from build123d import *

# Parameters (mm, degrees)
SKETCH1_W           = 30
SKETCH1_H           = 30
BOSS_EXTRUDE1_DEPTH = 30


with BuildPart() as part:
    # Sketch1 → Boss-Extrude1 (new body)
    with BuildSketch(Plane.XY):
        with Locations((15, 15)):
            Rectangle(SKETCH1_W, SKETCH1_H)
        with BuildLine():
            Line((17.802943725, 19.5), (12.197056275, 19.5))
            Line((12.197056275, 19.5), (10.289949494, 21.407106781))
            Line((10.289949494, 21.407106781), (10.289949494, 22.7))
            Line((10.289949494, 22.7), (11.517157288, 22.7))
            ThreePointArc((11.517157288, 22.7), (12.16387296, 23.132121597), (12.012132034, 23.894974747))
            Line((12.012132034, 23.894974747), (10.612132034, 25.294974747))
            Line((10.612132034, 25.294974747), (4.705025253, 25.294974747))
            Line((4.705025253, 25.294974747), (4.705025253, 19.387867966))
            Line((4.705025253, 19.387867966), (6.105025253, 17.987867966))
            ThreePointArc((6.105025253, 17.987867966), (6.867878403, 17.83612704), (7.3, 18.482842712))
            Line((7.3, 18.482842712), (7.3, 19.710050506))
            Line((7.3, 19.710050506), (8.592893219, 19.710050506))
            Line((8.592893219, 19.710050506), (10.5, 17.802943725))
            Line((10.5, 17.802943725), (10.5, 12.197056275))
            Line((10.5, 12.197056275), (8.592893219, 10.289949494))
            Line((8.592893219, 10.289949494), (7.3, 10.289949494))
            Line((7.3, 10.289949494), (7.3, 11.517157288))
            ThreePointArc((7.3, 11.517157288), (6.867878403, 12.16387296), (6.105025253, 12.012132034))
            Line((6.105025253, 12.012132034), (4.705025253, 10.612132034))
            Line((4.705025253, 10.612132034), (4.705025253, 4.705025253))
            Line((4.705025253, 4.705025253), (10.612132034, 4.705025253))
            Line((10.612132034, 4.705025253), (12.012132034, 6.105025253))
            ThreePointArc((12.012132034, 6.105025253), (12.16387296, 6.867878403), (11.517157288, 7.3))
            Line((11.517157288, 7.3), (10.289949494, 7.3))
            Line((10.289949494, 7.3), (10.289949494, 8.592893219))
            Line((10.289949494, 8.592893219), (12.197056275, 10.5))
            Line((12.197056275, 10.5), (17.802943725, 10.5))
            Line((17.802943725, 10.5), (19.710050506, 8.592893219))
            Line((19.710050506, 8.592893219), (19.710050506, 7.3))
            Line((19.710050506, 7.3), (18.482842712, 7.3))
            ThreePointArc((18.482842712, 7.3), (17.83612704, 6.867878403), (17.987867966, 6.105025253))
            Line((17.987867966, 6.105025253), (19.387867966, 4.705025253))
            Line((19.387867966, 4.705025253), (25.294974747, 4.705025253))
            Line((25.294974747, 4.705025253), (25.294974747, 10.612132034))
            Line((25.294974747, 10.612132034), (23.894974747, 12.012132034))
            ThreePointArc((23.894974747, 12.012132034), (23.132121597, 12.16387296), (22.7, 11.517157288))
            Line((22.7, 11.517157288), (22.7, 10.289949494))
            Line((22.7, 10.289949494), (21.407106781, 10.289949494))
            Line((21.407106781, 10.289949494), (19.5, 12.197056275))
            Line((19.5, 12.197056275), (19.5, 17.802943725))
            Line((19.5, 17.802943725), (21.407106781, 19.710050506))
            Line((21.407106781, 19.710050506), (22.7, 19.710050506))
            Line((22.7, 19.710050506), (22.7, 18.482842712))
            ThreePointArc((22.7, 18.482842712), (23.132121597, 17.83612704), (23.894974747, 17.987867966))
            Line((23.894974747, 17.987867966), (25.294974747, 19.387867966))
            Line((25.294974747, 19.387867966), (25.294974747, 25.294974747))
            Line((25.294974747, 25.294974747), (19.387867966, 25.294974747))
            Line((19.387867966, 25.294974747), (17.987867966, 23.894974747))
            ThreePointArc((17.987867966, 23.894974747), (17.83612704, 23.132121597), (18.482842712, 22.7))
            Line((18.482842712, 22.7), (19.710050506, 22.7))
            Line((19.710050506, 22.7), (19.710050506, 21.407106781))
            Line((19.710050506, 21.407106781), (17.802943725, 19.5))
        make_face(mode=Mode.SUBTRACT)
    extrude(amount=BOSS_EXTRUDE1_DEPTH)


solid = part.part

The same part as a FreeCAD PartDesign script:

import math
import FreeCAD as App
import Part
import Sketcher
from FreeCAD import Vector
Q = App.Units.Quantity


def add_polygon(sketch, points):
    """Adds a closed chain of lines whose ends are joined by coincident constraints."""
    first, n = sketch.GeometryCount, len(points)
    for a, b in zip(points, points[1:] + points[:1]):
        sketch.addGeometry(Part.LineSegment(App.Vector(*a, 0), App.Vector(*b, 0)), False)
    for i in range(n):
        sketch.addConstraint(Sketcher.Constraint("Coincident", first + i, 2, first + (i + 1) % n, 1))

doc = App.newDocument("Part")
body = doc.addObject("PartDesign::Body", "Body")

sketch1 = body.newObject("Sketcher::SketchObject", "Sketch")
sketch1.AttachmentSupport = (doc.getObject("XY_Plane"), [""])
sketch1.MapMode = "FlatFace"
add_polygon(sketch1, [(0, 30), (0, 0), (30, 0), (30, 30)])
sketch1.addGeometry(Part.LineSegment(Vector(12.197056, 19.5, 0), Vector(17.802944, 19.5, 0)), False)
sketch1.addGeometry(Part.LineSegment(Vector(17.802944, 19.5, 0), Vector(19.710051, 21.407107, 0)), False)
sketch1.addGeometry(Part.LineSegment(Vector(19.710051, 21.407107, 0), Vector(19.710051, 22.7, 0)), False)
sketch1.addGeometry(Part.LineSegment(Vector(19.710051, 22.7, 0), Vector(18.482843, 22.7, 0)), False)
sketch1.addGeometry(Part.ArcOfCircle(Part.Circle(Vector(18.482843, 23.4, 0), Vector(0, 0, 1), 0.7), math.radians(135), math.radians(270)), False)
sketch1.addGeometry(Part.LineSegment(Vector(17.987868, 23.894975, 0), Vector(19.387868, 25.294975, 0)), False)
sketch1.addGeometry(Part.LineSegment(Vector(19.387868, 25.294975, 0), Vector(25.294975, 25.294975, 0)), False)
sketch1.addGeometry(Part.LineSegment(Vector(25.294975, 25.294975, 0), Vector(25.294975, 19.387868, 0)), False)
sketch1.addGeometry(Part.LineSegment(Vector(25.294975, 19.387868, 0), Vector(23.894975, 17.987868, 0)), False)
sketch1.addGeometry(Part.ArcOfCircle(Part.Circle(Vector(23.4, 18.482843, 0), Vector(0, 0, 1), 0.7), math.radians(-180), math.radians(-45)), False)
sketch1.addGeometry(Part.LineSegment(Vector(22.7, 18.482843, 0), Vector(22.7, 19.710051, 0)), False)
sketch1.addGeometry(Part.LineSegment(Vector(22.7, 19.710051, 0), Vector(21.407107, 19.710051, 0)), False)
sketch1.addGeometry(Part.LineSegment(Vector(21.407107, 19.710051, 0), Vector(19.5, 17.802944, 0)), False)
sketch1.addGeometry(Part.LineSegment(Vector(19.5, 17.802944, 0), Vector(19.5, 12.197056, 0)), False)
sketch1.addGeometry(Part.LineSegment(Vector(19.5, 12.197056, 0), Vector(21.407107, 10.289949, 0)), False)
sketch1.addGeometry(Part.LineSegment(Vector(21.407107, 10.289949, 0), Vector(22.7, 10.289949, 0)), False)
sketch1.addGeometry(Part.LineSegment(Vector(22.7, 10.289949, 0), Vector(22.7, 11.517157, 0)), False)
sketch1.addGeometry(Part.ArcOfCircle(Part.Circle(Vector(23.4, 11.517157, 0), Vector(0, 0, 1), 0.7), math.radians(45), math.radians(180)), False)
sketch1.addGeometry(Part.LineSegment(Vector(23.894975, 12.012132, 0), Vector(25.294975, 10.612132, 0)), False)
sketch1.addGeometry(Part.LineSegment(Vector(25.294975, 10.612132, 0), Vector(25.294975, 4.705025, 0)), False)
sketch1.addGeometry(Part.LineSegment(Vector(25.294975, 4.705025, 0), Vector(19.387868, 4.705025, 0)), False)
sketch1.addGeometry(Part.LineSegment(Vector(19.387868, 4.705025, 0), Vector(17.987868, 6.105025, 0)), False)
sketch1.addGeometry(Part.ArcOfCircle(Part.Circle(Vector(18.482843, 6.6, 0), Vector(0, 0, 1), 0.7), math.radians(90), math.radians(225)), False)
sketch1.addGeometry(Part.LineSegment(Vector(18.482843, 7.3, 0), Vector(19.710051, 7.3, 0)), False)
sketch1.addGeometry(Part.LineSegment(Vector(19.710051, 7.3, 0), Vector(19.710051, 8.592893, 0)), False)
sketch1.addGeometry(Part.LineSegment(Vector(19.710051, 8.592893, 0), Vector(17.802944, 10.5, 0)), False)
sketch1.addGeometry(Part.LineSegment(Vector(17.802944, 10.5, 0), Vector(12.197056, 10.5, 0)), False)
sketch1.addGeometry(Part.LineSegment(Vector(12.197056, 10.5, 0), Vector(10.289949, 8.592893, 0)), False)
sketch1.addGeometry(Part.LineSegment(Vector(10.289949, 8.592893, 0), Vector(10.289949, 7.3, 0)), False)
sketch1.addGeometry(Part.LineSegment(Vector(10.289949, 7.3, 0), Vector(11.517157, 7.3, 0)), False)
sketch1.addGeometry(Part.ArcOfCircle(Part.Circle(Vector(11.517157, 6.6, 0), Vector(0, 0, 1), 0.7), math.radians(-45), math.radians(90)), False)
sketch1.addGeometry(Part.LineSegment(Vector(12.012132, 6.105025, 0), Vector(10.612132, 4.705025, 0)), False)
sketch1.addGeometry(Part.LineSegment(Vector(10.612132, 4.705025, 0), Vector(4.705025, 4.705025, 0)), False)
sketch1.addGeometry(Part.LineSegment(Vector(4.705025, 4.705025, 0), Vector(4.705025, 10.612132, 0)), False)
sketch1.addGeometry(Part.LineSegment(Vector(4.705025, 10.612132, 0), Vector(6.105025, 12.012132, 0)), False)
sketch1.addGeometry(Part.ArcOfCircle(Part.Circle(Vector(6.6, 11.517157, 0), Vector(0, 0, 1), 0.7), math.radians(0), math.radians(135)), False)
sketch1.addGeometry(Part.LineSegment(Vector(7.3, 11.517157, 0), Vector(7.3, 10.289949, 0)), False)
sketch1.addGeometry(Part.LineSegment(Vector(7.3, 10.289949, 0), Vector(8.592893, 10.289949, 0)), False)
sketch1.addGeometry(Part.LineSegment(Vector(8.592893, 10.289949, 0), Vector(10.5, 12.197056, 0)), False)
sketch1.addGeometry(Part.LineSegment(Vector(10.5, 12.197056, 0), Vector(10.5, 17.802944, 0)), False)
sketch1.addGeometry(Part.LineSegment(Vector(10.5, 17.802944, 0), Vector(8.592893, 19.710051, 0)), False)
sketch1.addGeometry(Part.LineSegment(Vector(8.592893, 19.710051, 0), Vector(7.3, 19.710051, 0)), False)
sketch1.addGeometry(Part.LineSegment(Vector(7.3, 19.710051, 0), Vector(7.3, 18.482843, 0)), False)
sketch1.addGeometry(Part.ArcOfCircle(Part.Circle(Vector(6.6, 18.482843, 0), Vector(0, 0, 1), 0.7), math.radians(-135), math.radians(0)), False)
sketch1.addGeometry(Part.LineSegment(Vector(6.105025, 17.987868, 0), Vector(4.705025, 19.387868, 0)), False)
sketch1.addGeometry(Part.LineSegment(Vector(4.705025, 19.387868, 0), Vector(4.705025, 25.294975, 0)), False)
sketch1.addGeometry(Part.LineSegment(Vector(4.705025, 25.294975, 0), Vector(10.612132, 25.294975, 0)), False)
sketch1.addGeometry(Part.LineSegment(Vector(10.612132, 25.294975, 0), Vector(12.012132, 23.894975, 0)), False)
sketch1.addGeometry(Part.ArcOfCircle(Part.Circle(Vector(11.517157, 23.4, 0), Vector(0, 0, 1), 0.7), math.radians(-90), math.radians(45)), False)
sketch1.addGeometry(Part.LineSegment(Vector(11.517157, 22.7, 0), Vector(10.289949, 22.7, 0)), False)
sketch1.addGeometry(Part.LineSegment(Vector(10.289949, 22.7, 0), Vector(10.289949, 21.407107, 0)), False)
sketch1.addGeometry(Part.LineSegment(Vector(10.289949, 21.407107, 0), Vector(12.197056, 19.5, 0)), False)
sketch1.addConstraint([
    Sketcher.Constraint("Coincident", 4, 2, 5, 1),
    Sketcher.Constraint("Coincident", 5, 2, 6, 1),
    Sketcher.Constraint("Coincident", 6, 2, 7, 1),
    Sketcher.Constraint("Tangent", 7, 2, 8, 2),
    Sketcher.Constraint("Tangent", 8, 1, 9, 1),
    Sketcher.Constraint("Coincident", 9, 2, 10, 1),
    Sketcher.Constraint("Coincident", 10, 2, 11, 1),
    Sketcher.Constraint("Coincident", 11, 2, 12, 1),
    Sketcher.Constraint("Tangent", 12, 2, 13, 2),
    Sketcher.Constraint("Tangent", 13, 1, 14, 1),
    Sketcher.Constraint("Coincident", 14, 2, 15, 1),
    Sketcher.Constraint("Coincident", 15, 2, 16, 1),
    Sketcher.Constraint("Coincident", 16, 2, 17, 1),
    Sketcher.Constraint("Coincident", 17, 2, 18, 1),
    Sketcher.Constraint("Coincident", 18, 2, 19, 1),
    Sketcher.Constraint("Coincident", 19, 2, 20, 1),
    Sketcher.Constraint("Tangent", 20, 2, 21, 2),
    Sketcher.Constraint("Tangent", 21, 1, 22, 1),
    Sketcher.Constraint("Coincident", 22, 2, 23, 1),
    Sketcher.Constraint("Coincident", 23, 2, 24, 1),
    Sketcher.Constraint("Coincident", 24, 2, 25, 1),
    Sketcher.Constraint("Tangent", 25, 2, 26, 2),
    Sketcher.Constraint("Tangent", 26, 1, 27, 1),
    Sketcher.Constraint("Coincident", 27, 2, 28, 1),
    Sketcher.Constraint("Coincident", 28, 2, 29, 1),
    Sketcher.Constraint("Coincident", 29, 2, 30, 1),
    Sketcher.Constraint("Coincident", 30, 2, 31, 1),
    Sketcher.Constraint("Coincident", 31, 2, 32, 1),
    Sketcher.Constraint("Coincident", 32, 2, 33, 1),
    Sketcher.Constraint("Tangent", 33, 2, 34, 2),
    Sketcher.Constraint("Tangent", 34, 1, 35, 1),
    Sketcher.Constraint("Coincident", 35, 2, 36, 1),
    Sketcher.Constraint("Coincident", 36, 2, 37, 1),
    Sketcher.Constraint("Coincident", 37, 2, 38, 1),
    Sketcher.Constraint("Tangent", 38, 2, 39, 2),
    Sketcher.Constraint("Tangent", 39, 1, 40, 1),
    Sketcher.Constraint("Coincident", 40, 2, 41, 1),
    Sketcher.Constraint("Coincident", 41, 2, 42, 1),
    Sketcher.Constraint("Coincident", 42, 2, 43, 1),
    Sketcher.Constraint("Coincident", 43, 2, 44, 1),
    Sketcher.Constraint("Coincident", 44, 2, 45, 1),
    Sketcher.Constraint("Coincident", 45, 2, 46, 1),
    Sketcher.Constraint("Tangent", 46, 2, 47, 2),
    Sketcher.Constraint("Tangent", 47, 1, 48, 1),
    Sketcher.Constraint("Coincident", 48, 2, 49, 1),
    Sketcher.Constraint("Coincident", 49, 2, 50, 1),
    Sketcher.Constraint("Coincident", 50, 2, 51, 1),
    Sketcher.Constraint("Tangent", 51, 2, 52, 2),
    Sketcher.Constraint("Tangent", 52, 1, 53, 1),
    Sketcher.Constraint("Coincident", 53, 2, 54, 1),
    Sketcher.Constraint("Coincident", 54, 2, 55, 1),
    Sketcher.Constraint("Coincident", 55, 2, 4, 1),
    Sketcher.Constraint("Vertical", 0),
    Sketcher.Constraint("Horizontal", 1),
    Sketcher.Constraint("Vertical", 2),
    Sketcher.Constraint("Horizontal", 3),
    Sketcher.Constraint("Horizontal", 4),
    Sketcher.Constraint("Vertical", 6),
    Sketcher.Constraint("Horizontal", 7),
    Sketcher.Constraint("Horizontal", 10),
    Sketcher.Constraint("Vertical", 11),
    Sketcher.Constraint("Vertical", 14),
    Sketcher.Constraint("Horizontal", 15),
    Sketcher.Constraint("Vertical", 17),
    Sketcher.Constraint("Horizontal", 19),
    Sketcher.Constraint("Vertical", 20),
    Sketcher.Constraint("Vertical", 23),
    Sketcher.Constraint("Horizontal", 24),
    Sketcher.Constraint("Horizontal", 27),
    Sketcher.Constraint("Vertical", 28),
    Sketcher.Constraint("Horizontal", 30),
    Sketcher.Constraint("Vertical", 32),
    Sketcher.Constraint("Horizontal", 33),
    Sketcher.Constraint("Horizontal", 36),
    Sketcher.Constraint("Vertical", 37),
    Sketcher.Constraint("Vertical", 40),
    Sketcher.Constraint("Horizontal", 41),
    Sketcher.Constraint("Vertical", 43),
    Sketcher.Constraint("Horizontal", 45),
    Sketcher.Constraint("Vertical", 46),
    Sketcher.Constraint("Vertical", 49),
    Sketcher.Constraint("Horizontal", 50),
    Sketcher.Constraint("Horizontal", 53),
    Sketcher.Constraint("Vertical", 54),
    Sketcher.Constraint("Coincident", 0, 2, -1, 1),
    Sketcher.Constraint("Equal", 8, 13),
    Sketcher.Constraint("Equal", 13, 21),
    Sketcher.Constraint("Equal", 21, 26),
    Sketcher.Constraint("Equal", 26, 34),
    Sketcher.Constraint("Equal", 34, 39),
    Sketcher.Constraint("Equal", 39, 47),
    Sketcher.Constraint("Equal", 47, 52),
    Sketcher.Constraint("Parallel", 5, 9),
    Sketcher.Constraint("Parallel", 9, 12),
    Sketcher.Constraint("Parallel", 12, 16),
    Sketcher.Constraint("Perpendicular", 16, 18),
    Sketcher.Constraint("Parallel", 18, 22),
    Sketcher.Constraint("Parallel", 22, 25),
    Sketcher.Constraint("Parallel", 25, 29),
    Sketcher.Constraint("Perpendicular", 29, 31),
    Sketcher.Constraint("Parallel", 31, 35),
    Sketcher.Constraint("Parallel", 35, 38),
    Sketcher.Constraint("Parallel", 38, 42),
    Sketcher.Constraint("Perpendicular", 42, 44),
    Sketcher.Constraint("Parallel", 44, 48),
    Sketcher.Constraint("Parallel", 48, 51),
    Sketcher.Constraint("Parallel", 51, 55),
    Sketcher.Constraint("Horizontal", 26, 3, 34, 3),
    Sketcher.Constraint("Horizontal", 21, 3, 39, 3),
    Sketcher.Constraint("Horizontal", 13, 3, 47, 3),
    Sketcher.Constraint("Horizontal", 8, 3, 52, 3),
    Sketcher.Constraint("Horizontal", 28, 2, 31, 2),
    Sketcher.Constraint("Horizontal", 25, 2, 34, 1),
    Sketcher.Constraint("Horizontal", 24, 2, 35, 2),
    Sketcher.Constraint("Horizontal", 22, 2, 37, 2),
    Sketcher.Constraint("Horizontal", 19, 2, 40, 2),
    Sketcher.Constraint("Horizontal", 17, 2, 42, 2),
    Sketcher.Constraint("Horizontal", 16, 2, 43, 2),
    Sketcher.Constraint("Horizontal", 15, 2, 44, 2),
    Sketcher.Constraint("Horizontal", 11, 2, 48, 2),
    Sketcher.Constraint("Horizontal", 10, 2, 49, 2),
    Sketcher.Constraint("Horizontal", 5, 2, 54, 2),
    Sketcher.Constraint("Vertical", 13, 3, 21, 3),
    Sketcher.Constraint("Vertical", 8, 3, 26, 3),
    Sketcher.Constraint("Vertical", 39, 3, 47, 3),
    Sketcher.Constraint("Vertical", 34, 3, 52, 3),
    Sketcher.Constraint("Vertical", 15, 2, 18, 2),
    Sketcher.Constraint("Vertical", 11, 2, 22, 2),
    Sketcher.Constraint("Vertical", 9, 2, 24, 2),
    Sketcher.Constraint("Vertical", 6, 2, 27, 2),
    Sketcher.Constraint("Vertical", 4, 2, 29, 2),
    Sketcher.Constraint("Vertical", 32, 2, 53, 2),
    Sketcher.Constraint("Equal", 27, 33),
    Sketcher.Constraint("Equal", 24, 36),
    Sketcher.Constraint("Equal", 19, 41),
    Sketcher.Constraint("Equal", 3, 0),
    Sketcher.Constraint("Equal", 45, 6),
    Sketcher.Constraint("Equal", 50, 11),
    Sketcher.Constraint("Equal", 53, 14),
    Sketcher.Constraint("Equal", 30, 17),
    Sketcher.Constraint("Equal", 14, 20),
    Sketcher.Constraint("Equal", 11, 23),
    Sketcher.Constraint("Equal", 6, 28),
    Sketcher.Constraint("Equal", 9, 12),
    Sketcher.Constraint("Equal", 5, 16),
    Sketcher.Constraint("Radius", 8, Q("0.7 mm")),
    Sketcher.Constraint("DistanceX", 1, 1, 1, 2, Q("30 mm")),
    Sketcher.Constraint("DistanceY", -1, 1, 8, 3, Q("23.4 mm")),
    Sketcher.Constraint("DistanceX", -1, 1, 13, 3, Q("23.4 mm")),
    Sketcher.Constraint("DistanceY", -1, 1, 26, 3, Q("6.6 mm")),
    Sketcher.Constraint("DistanceY", -1, 1, 4, 2, Q("19.5 mm")),
    Sketcher.Constraint("Distance", 9, Q("1.979899 mm")),
    Sketcher.Constraint("DistanceX", 4, 1, 4, 2, Q("5.605887 mm")),
    Sketcher.Constraint("DistanceX", 7, 2, 7, 1, Q("1.227208 mm")),
    Sketcher.Constraint("DistanceX", 10, 1, 10, 2, Q("5.907107 mm")),
])
pad1 = body.newObject("PartDesign::Pad", "Pad")
pad1.Profile = sketch1
pad1.Length = 30

doc.recompute()
